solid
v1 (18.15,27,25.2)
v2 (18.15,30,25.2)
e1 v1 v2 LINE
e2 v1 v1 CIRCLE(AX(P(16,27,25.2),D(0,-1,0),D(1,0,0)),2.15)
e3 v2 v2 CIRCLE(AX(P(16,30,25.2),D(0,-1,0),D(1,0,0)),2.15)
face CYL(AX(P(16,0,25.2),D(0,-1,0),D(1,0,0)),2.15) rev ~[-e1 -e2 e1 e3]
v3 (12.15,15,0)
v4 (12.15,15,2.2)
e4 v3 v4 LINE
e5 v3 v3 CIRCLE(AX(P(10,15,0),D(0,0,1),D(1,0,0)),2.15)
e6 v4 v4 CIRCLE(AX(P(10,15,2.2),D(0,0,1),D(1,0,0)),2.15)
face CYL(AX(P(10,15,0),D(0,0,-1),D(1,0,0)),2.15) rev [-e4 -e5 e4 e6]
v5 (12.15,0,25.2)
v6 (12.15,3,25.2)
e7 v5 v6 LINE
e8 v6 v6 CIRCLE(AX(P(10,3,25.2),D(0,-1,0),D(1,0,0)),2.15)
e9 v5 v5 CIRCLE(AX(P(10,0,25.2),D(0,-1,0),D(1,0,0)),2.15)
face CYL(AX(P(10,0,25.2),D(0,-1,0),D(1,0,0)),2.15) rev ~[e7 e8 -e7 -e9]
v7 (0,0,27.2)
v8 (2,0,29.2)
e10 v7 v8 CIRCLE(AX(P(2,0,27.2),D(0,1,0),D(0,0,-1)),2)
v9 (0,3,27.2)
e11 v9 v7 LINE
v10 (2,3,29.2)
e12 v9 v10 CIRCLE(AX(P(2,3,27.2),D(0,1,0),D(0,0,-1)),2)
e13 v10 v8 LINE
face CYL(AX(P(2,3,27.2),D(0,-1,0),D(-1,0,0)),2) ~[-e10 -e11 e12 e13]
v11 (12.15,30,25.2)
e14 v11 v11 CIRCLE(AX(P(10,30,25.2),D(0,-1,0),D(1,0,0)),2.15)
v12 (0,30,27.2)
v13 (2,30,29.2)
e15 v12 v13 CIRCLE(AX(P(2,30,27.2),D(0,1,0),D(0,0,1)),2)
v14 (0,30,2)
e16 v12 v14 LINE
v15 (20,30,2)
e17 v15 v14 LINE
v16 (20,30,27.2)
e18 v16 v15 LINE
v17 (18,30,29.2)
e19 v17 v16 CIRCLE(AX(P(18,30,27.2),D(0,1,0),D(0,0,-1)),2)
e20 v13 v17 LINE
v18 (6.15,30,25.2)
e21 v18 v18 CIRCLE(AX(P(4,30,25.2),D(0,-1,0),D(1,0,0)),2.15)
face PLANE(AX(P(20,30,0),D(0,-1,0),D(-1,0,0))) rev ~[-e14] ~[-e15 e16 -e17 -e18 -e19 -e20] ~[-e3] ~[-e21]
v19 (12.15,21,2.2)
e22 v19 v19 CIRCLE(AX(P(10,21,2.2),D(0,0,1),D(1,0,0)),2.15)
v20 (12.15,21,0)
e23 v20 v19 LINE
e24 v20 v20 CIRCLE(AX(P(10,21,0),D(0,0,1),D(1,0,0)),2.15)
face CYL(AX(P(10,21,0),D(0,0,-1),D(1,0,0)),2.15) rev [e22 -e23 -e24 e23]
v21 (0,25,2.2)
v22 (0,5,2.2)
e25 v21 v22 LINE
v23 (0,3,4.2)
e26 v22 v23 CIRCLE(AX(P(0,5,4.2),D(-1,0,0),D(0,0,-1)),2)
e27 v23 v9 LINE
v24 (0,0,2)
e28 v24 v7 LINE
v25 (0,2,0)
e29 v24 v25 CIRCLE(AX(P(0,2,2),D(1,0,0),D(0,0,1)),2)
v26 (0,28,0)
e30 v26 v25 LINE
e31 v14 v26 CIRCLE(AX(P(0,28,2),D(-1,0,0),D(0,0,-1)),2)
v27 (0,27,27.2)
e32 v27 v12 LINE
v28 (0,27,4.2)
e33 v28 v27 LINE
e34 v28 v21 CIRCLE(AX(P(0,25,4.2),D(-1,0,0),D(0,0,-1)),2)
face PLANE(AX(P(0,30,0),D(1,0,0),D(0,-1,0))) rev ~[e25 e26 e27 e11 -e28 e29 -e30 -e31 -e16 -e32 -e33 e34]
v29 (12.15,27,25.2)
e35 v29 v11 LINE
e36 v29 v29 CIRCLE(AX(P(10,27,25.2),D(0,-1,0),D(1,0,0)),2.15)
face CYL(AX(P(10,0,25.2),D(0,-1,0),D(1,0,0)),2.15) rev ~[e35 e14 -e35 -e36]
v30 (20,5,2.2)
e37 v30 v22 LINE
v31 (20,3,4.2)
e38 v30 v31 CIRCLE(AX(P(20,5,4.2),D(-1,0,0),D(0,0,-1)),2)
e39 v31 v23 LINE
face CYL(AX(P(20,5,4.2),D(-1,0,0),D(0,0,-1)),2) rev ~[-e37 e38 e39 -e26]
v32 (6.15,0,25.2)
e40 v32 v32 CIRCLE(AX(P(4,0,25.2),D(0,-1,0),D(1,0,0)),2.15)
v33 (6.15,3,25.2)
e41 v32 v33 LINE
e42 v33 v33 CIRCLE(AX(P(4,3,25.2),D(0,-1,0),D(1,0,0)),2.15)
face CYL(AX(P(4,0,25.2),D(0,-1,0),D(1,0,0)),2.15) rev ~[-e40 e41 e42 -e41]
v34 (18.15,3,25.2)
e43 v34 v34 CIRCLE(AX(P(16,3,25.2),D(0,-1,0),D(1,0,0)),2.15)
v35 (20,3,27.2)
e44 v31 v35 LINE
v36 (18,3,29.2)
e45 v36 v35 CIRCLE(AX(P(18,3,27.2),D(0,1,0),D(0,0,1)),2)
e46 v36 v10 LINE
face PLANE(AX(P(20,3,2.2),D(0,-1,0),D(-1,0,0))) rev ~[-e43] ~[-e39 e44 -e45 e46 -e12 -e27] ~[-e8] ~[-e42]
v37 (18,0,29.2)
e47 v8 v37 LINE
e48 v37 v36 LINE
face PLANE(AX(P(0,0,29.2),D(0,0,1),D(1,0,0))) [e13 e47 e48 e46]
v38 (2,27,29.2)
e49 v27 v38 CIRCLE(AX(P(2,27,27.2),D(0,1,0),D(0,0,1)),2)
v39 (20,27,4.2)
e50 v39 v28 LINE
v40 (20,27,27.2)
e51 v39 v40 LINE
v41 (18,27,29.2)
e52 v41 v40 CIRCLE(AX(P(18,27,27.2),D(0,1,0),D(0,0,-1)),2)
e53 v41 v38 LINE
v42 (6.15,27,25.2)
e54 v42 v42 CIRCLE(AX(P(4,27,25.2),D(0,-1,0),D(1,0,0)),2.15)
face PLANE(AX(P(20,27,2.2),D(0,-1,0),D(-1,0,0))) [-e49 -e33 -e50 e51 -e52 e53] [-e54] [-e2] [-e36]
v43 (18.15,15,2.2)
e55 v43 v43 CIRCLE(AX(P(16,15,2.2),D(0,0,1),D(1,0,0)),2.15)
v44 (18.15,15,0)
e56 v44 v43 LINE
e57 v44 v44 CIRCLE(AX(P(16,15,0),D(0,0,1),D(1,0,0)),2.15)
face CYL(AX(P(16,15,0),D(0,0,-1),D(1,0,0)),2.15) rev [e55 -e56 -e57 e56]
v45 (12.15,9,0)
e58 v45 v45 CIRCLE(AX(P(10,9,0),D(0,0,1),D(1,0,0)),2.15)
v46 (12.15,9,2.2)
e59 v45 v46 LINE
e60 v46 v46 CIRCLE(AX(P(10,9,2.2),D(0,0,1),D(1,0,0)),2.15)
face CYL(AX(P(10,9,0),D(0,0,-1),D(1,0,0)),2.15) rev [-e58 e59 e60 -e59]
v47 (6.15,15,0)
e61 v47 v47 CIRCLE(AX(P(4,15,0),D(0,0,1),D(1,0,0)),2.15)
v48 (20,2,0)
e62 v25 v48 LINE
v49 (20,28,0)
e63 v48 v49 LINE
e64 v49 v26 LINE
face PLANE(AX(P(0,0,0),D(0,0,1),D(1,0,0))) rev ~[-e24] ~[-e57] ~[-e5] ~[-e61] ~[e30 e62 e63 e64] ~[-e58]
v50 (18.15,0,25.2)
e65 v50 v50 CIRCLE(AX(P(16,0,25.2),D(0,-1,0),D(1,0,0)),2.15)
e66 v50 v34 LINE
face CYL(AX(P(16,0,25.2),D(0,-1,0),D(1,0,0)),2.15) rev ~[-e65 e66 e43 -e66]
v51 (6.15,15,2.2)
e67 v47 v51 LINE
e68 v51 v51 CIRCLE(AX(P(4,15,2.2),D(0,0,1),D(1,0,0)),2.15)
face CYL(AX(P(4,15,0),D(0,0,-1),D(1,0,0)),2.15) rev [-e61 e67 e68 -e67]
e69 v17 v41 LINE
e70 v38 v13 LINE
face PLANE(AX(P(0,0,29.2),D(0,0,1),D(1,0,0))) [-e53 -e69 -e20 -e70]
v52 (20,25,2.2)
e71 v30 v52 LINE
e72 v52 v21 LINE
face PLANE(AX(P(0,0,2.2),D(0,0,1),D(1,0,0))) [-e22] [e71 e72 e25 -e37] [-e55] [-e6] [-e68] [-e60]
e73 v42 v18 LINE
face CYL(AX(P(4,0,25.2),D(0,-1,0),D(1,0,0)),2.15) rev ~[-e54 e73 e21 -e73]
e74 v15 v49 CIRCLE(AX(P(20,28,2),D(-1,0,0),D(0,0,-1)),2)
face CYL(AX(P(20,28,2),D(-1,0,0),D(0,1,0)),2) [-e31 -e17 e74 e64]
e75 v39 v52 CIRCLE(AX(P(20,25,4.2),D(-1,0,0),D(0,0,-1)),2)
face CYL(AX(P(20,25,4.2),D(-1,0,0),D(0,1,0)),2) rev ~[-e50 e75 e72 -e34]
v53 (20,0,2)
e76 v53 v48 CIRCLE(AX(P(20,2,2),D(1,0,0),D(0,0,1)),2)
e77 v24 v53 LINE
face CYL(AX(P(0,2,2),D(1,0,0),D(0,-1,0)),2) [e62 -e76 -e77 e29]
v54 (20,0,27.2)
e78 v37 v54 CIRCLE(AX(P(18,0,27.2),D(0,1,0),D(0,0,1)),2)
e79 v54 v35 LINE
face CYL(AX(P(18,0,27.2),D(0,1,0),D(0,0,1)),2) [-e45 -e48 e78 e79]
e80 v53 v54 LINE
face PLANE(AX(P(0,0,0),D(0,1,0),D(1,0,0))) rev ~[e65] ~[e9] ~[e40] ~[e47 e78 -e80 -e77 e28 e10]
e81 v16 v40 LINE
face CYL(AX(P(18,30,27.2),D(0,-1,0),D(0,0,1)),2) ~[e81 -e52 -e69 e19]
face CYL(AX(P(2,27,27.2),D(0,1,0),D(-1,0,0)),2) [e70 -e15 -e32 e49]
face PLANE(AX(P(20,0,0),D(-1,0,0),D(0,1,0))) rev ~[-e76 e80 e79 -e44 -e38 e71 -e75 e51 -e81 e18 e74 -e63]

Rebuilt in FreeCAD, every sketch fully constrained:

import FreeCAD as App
import Part
import Sketcher
from FreeCAD import Vector
Q = App.Units.Quantity


def edges_at(feature, points):
    """Names of the edges that pass closest to the given points."""
    edges = feature.Shape.Edges
    near = lambda p: min(range(len(edges)), key=lambda i: edges[i].distToShape(Part.Vertex(*p))[0])
    return sorted({f"Edge{near(p) + 1}" for p in points})

doc = App.newDocument("Part")
body = doc.addObject("PartDesign::Body", "Body")

sketch1 = doc.addObject("Sketcher::SketchObject", "Sketch")
body.addObject(sketch1)
sketch1.AttachmentSupport = (doc.XY_Plane, [""])
sketch1.MapMode = "FlatFace"
sketch1.addGeometry(Part.LineSegment(Vector(0, 30, 0), Vector(0, 0, 0)), False)
sketch1.addGeometry(Part.LineSegment(Vector(0, 0, 0), Vector(20, 0, 0)), False)
sketch1.addGeometry(Part.LineSegment(Vector(20, 0, 0), Vector(20, 30, 0)), False)
sketch1.addGeometry(Part.LineSegment(Vector(20, 30, 0), Vector(0, 30, 0)), False)
sketch1.addGeometry(Part.Circle(Vector(10, 9, 0), Vector(0, 0, 1), 2.15), False)
sketch1.addGeometry(Part.Circle(Vector(4, 15, 0), Vector(0, 0, 1), 2.15), False)
sketch1.addGeometry(Part.Circle(Vector(10, 15, 0), Vector(0, 0, 1), 2.15), False)
sketch1.addGeometry(Part.Circle(Vector(10, 21, 0), Vector(0, 0, 1), 2.15), False)
sketch1.addGeometry(Part.Circle(Vector(16, 15, 0), Vector(0, 0, 1), 2.15), False)
sketch1.addConstraint(Sketcher.Constraint("Coincident", 0, 2, 1, 1))
sketch1.addConstraint(Sketcher.Constraint("Coincident", 1, 2, 2, 1))
sketch1.addConstraint(Sketcher.Constraint("Coincident", 2, 2, 3, 1))
sketch1.addConstraint(Sketcher.Constraint("Coincident", 3, 2, 0, 1))
sketch1.addConstraint(Sketcher.Constraint("Vertical", 0))
sketch1.addConstraint(Sketcher.Constraint("Horizontal", 1))
sketch1.addConstraint(Sketcher.Constraint("Vertical", 2))
sketch1.addConstraint(Sketcher.Constraint("Horizontal", 3))
sketch1.addConstraint(Sketcher.Constraint("Coincident", 0, 2, -1, 1))
sketch1.addConstraint(Sketcher.Constraint("Equal", 4, 5))
sketch1.addConstraint(Sketcher.Constraint("Equal", 5, 6))
sketch1.addConstraint(Sketcher.Constraint("Equal", 6, 7))
sketch1.addConstraint(Sketcher.Constraint("Equal", 7, 8))
sketch1.addConstraint(Sketcher.Constraint("Horizontal", 5, 3, 6, 3))
sketch1.addConstraint(Sketcher.Constraint("Horizontal", 6, 3, 8, 3))
sketch1.addConstraint(Sketcher.Constraint("Vertical", 4, 3, 6, 3))
sketch1.addConstraint(Sketcher.Constraint("Vertical", 6, 3, 7, 3))
sketch1.addConstraint(Sketcher.Constraint("Diameter", 4, Q("4.3 mm")))
sketch1.addConstraint(Sketcher.Constraint("DistanceX", 1, 1, 1, 2, Q("20 mm")))
sketch1.addConstraint(Sketcher.Constraint("DistanceY", 0, 2, 0, 1, Q("30 mm")))
sketch1.addConstraint(Sketcher.Constraint("DistanceX", -1, 1, 4, 3, Q("10 mm")))
sketch1.addConstraint(Sketcher.Constraint("DistanceX", 5, 3, 4, 3, Q("6 mm")))
sketch1.addConstraint(Sketcher.Constraint("DistanceY", 4, 3, 5, 3, Q("6 mm")))
sketch1.addConstraint(Sketcher.Constraint("DistanceY", 6, 3, 7, 3, Q("6 mm")))
sketch1.addConstraint(Sketcher.Constraint("DistanceX", 6, 3, 8, 3, Q("6 mm")))
sketch1.addConstraint(Sketcher.Constraint("DistanceY", -1, 1, 4, 3, Q("9 mm")))
pad1 = doc.addObject("PartDesign::Pad", "Pad")
body.addObject(pad1)
pad1.Profile = sketch1
pad1.Length = 2.2

sketch2 = doc.addObject("Sketcher::SketchObject", "Sketch001")
body.addObject(sketch2)
sketch2.AttachmentSupport = (doc.XY_Plane, [""])
sketch2.MapMode = "FlatFace"
sketch2.AttachmentOffset = App.Placement(Vector(0, 0, 2.2), App.Rotation())
sketch2.addGeometry(Part.LineSegment(Vector(20, 30, 0), Vector(0, 30, 0)), False)
sketch2.addGeometry(Part.LineSegment(Vector(0, 30, 0), Vector(0, 27, 0)), False)
sketch2.addGeometry(Part.LineSegment(Vector(0, 27, 0), Vector(20, 27, 0)), False)
sketch2.addGeometry(Part.LineSegment(Vector(20, 27, 0), Vector(20, 30, 0)), False)
sketch2.addGeometry(Part.LineSegment(Vector(0, 3, 0), Vector(0, 0, 0)), False)
sketch2.addGeometry(Part.LineSegment(Vector(0, 0, 0), Vector(20, 0, 0)), False)
sketch2.addGeometry(Part.LineSegment(Vector(20, 0, 0), Vector(20, 3, 0)), False)
sketch2.addGeometry(Part.LineSegment(Vector(20, 3, 0), Vector(0, 3, 0)), False)
sketch2.addConstraint(Sketcher.Constraint("Coincident", 0, 2, 1, 1))
sketch2.addConstraint(Sketcher.Constraint("Coincident", 1, 2, 2, 1))
sketch2.addConstraint(Sketcher.Constraint("Coincident", 2, 2, 3, 1))
sketch2.addConstraint(Sketcher.Constraint("Coincident", 3, 2, 0, 1))
sketch2.addConstraint(Sketcher.Constraint("Coincident", 4, 2, 5, 1))
sketch2.addConstraint(Sketcher.Constraint("Coincident", 5, 2, 6, 1))
sketch2.addConstraint(Sketcher.Constraint("Coincident", 6, 2, 7, 1))
sketch2.addConstraint(Sketcher.Constraint("Coincident", 7, 2, 4, 1))
sketch2.addConstraint(Sketcher.Constraint("Horizontal", 0))
sketch2.addConstraint(Sketcher.Constraint("Vertical", 1))
sketch2.addConstraint(Sketcher.Constraint("Horizontal", 2))
sketch2.addConstraint(Sketcher.Constraint("Vertical", 3))
sketch2.addConstraint(Sketcher.Constraint("Vertical", 4))
sketch2.addConstraint(Sketcher.Constraint("Horizontal", 5))
sketch2.addConstraint(Sketcher.Constraint("Vertical", 6))
sketch2.addConstraint(Sketcher.Constraint("Horizontal", 7))
sketch2.addConstraint(Sketcher.Constraint("Coincident", 4, 2, -1, 1))
sketch2.addConstraint(Sketcher.Constraint("PointOnObject", 0, 2, -2))
sketch2.addConstraint(Sketcher.Constraint("Vertical", 3, 2, 5, 2))
sketch2.addConstraint(Sketcher.Constraint("Equal", 3, 4))
sketch2.addConstraint(Sketcher.Constraint("DistanceY", 1, 2, 1, 1, Q("3 mm")))
sketch2.addConstraint(Sketcher.Constraint("DistanceX", 0, 2, 0, 1, Q("20 mm")))
sketch2.addConstraint(Sketcher.Constraint("DistanceY", -1, 1, 0, 2, Q("30 mm")))
pad2 = doc.addObject("PartDesign::Pad", "Pad001")
body.addObject(pad2)
pad2.Profile = sketch2
pad2.Length = 27

sketch3 = doc.addObject("Sketcher::SketchObject", "Sketch002")
body.addObject(sketch3)
sketch3.AttachmentSupport = (doc.XZ_Plane, [""])
sketch3.MapMode = "FlatFace"
sketch3.addGeometry(Part.Circle(Vector(10, 25.2, 0), Vector(0, 0, 1), 2.15), False)
sketch3.addGeometry(Part.Circle(Vector(16, 25.2, 0), Vector(0, 0, 1), 2.15), False)
sketch3.addGeometry(Part.Circle(Vector(4, 25.2, 0), Vector(0, 0, 1), 2.15), False)
sketch3.addConstraint(Sketcher.Constraint("Equal", 0, 1))
sketch3.addConstraint(Sketcher.Constraint("Equal", 1, 2))
sketch3.addConstraint(Sketcher.Constraint("Horizontal", 0, 3, 1, 3))
sketch3.addConstraint(Sketcher.Constraint("Horizontal", 1, 3, 2, 3))
sketch3.addConstraint(Sketcher.Constraint("Diameter", 0, Q("4.3 mm")))
sketch3.addConstraint(Sketcher.Constraint("DistanceX", -1, 1, 2, 3, Q("4 mm")))
sketch3.addConstraint(Sketcher.Constraint("DistanceX", 0, 3, 1, 3, Q("6 mm")))
sketch3.addConstraint(Sketcher.Constraint("DistanceX", 2, 3, 0, 3, Q("6 mm")))
sketch3.addConstraint(Sketcher.Constraint("DistanceY", -1, 1, 0, 3, Q("25.2 mm")))
pocket1 = doc.addObject("PartDesign::Pocket", "Pocket")
body.addObject(pocket1)
pocket1.Profile = sketch3
pocket1.Type = "ThroughAll"
doc.recompute()

fillet = doc.addObject("PartDesign::Fillet", "Fillet")
body.addObject(fillet)
fillet.Base = (pocket1, edges_at(pocket1, [
    (10, 0, 0),
    (10, 3, 2.2),
    (10, 27, 2.2),
    (0, 28.5, 29.2),
    (20, 28.5, 29.2),
    (20, 1.5, 29.2),
    (0, 1.5, 29.2),
    (10, 30, 0),
]))
fillet.Radius = 2

doc.recompute()
